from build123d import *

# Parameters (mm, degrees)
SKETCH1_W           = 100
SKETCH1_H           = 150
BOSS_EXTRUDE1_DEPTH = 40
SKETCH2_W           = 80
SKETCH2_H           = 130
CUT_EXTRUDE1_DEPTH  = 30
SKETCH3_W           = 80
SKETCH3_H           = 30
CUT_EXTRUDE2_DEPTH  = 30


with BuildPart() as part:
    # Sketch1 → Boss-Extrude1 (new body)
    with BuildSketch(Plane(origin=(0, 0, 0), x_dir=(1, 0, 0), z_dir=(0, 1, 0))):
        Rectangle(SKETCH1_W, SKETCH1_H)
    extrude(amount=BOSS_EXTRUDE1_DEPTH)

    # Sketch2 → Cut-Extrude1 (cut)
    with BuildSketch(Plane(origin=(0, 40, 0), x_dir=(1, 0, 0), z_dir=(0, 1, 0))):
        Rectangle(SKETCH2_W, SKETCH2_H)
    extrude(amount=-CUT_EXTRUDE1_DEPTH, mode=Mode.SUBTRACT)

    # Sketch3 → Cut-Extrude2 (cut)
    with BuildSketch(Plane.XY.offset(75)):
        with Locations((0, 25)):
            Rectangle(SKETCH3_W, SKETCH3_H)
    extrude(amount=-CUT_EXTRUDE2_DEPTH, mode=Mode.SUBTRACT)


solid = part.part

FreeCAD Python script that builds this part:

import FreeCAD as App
import Part
import Sketcher

V = App.Vector


def add_polygon(sketch, points):
    """Adds a closed chain of lines whose ends are joined by coincident constraints."""
    first, n = sketch.GeometryCount, len(points)
    for a, b in zip(points, points[1:] + points[:1]):
        sketch.addGeometry(Part.LineSegment(App.Vector(*a, 0), App.Vector(*b, 0)), False)
    for i in range(n):
        sketch.addConstraint(Sketcher.Constraint("Coincident", first + i, 2, first + (i + 1) % n, 1))

doc = App.newDocument("Part")
body = doc.addObject("PartDesign::Body", "Body")

sketch1 = body.newObject("Sketcher::SketchObject", "Sketch")
sketch1.AttachmentSupport = (doc.getObject("XZ_Plane"), [""])
sketch1.MapMode = "FlatFace"
add_polygon(sketch1, [(-50, -75), (-50, 75), (50, 75), (50, -75)])
sketch1.addConstraint(Sketcher.Constraint("Vertical", 0))
sketch1.addConstraint(Sketcher.Constraint("Horizontal", 1))
sketch1.addConstraint(Sketcher.Constraint("Vertical", 2))
sketch1.addConstraint(Sketcher.Constraint("Horizontal", 3))
sketch1.addConstraint(Sketcher.Constraint("Symmetric", 0, 2, 2, 2, -1, 1))
sketch1.addConstraint(Sketcher.Constraint("DistanceX", 1, 1, 1, 2, 100.0))
sketch1.addConstraint(Sketcher.Constraint("DistanceY", 0, 1, 0, 2, 150.0))
pad1 = body.newObject("PartDesign::Pad", "Pad")
pad1.Profile = sketch1
pad1.Length = 40
pad1.Reversed = True

sketch2 = body.newObject("Sketcher::SketchObject", "Sketch001")
sketch2.AttachmentSupport = (doc.getObject("XZ_Plane"), [""])
sketch2.MapMode = "FlatFace"
sketch2.AttachmentOffset = App.Placement(V(0, 0, -40), App.Rotation())
add_polygon(sketch2, [(-40, -65), (-40, 65), (40, 65), (40, -65)])
sketch2.addConstraint(Sketcher.Constraint("Vertical", 0))
sketch2.addConstraint(Sketcher.Constraint("Horizontal", 1))
sketch2.addConstraint(Sketcher.Constraint("Vertical", 2))
sketch2.addConstraint(Sketcher.Constraint("Horizontal", 3))
sketch2.addConstraint(Sketcher.Constraint("Symmetric", 0, 2, 2, 2, -1, 1))
sketch2.addConstraint(Sketcher.Constraint("DistanceX", 1, 1, 1, 2, 80.0))
sketch2.addConstraint(Sketcher.Constraint("DistanceY", 0, 1, 0, 2, 130.0))
pocket1 = body.newObject("PartDesign::Pocket", "Pocket")
pocket1.Profile = sketch2
pocket1.Length = 30
pocket1.Reversed = True

sketch3 = body.newObject("Sketcher::SketchObject", "Sketch002")
sketch3.AttachmentSupport = (doc.getObject("XY_Plane"), [""])
sketch3.MapMode = "FlatFace"
sketch3.AttachmentOffset = App.Placement(V(0, 0, 75), App.Rotation())
add_polygon(sketch3, [(-40, 40), (-40, 10), (40, 10), (40, 40)])
sketch3.addConstraint(Sketcher.Constraint("Vertical", 0))
sketch3.addConstraint(Sketcher.Constraint("Horizontal", 1))
sketch3.addConstraint(Sketcher.Constraint("Vertical", 2))
sketch3.addConstraint(Sketcher.Constraint("Horizontal", 3))
sketch3.addConstraint(Sketcher.Constraint("DistanceX", 1, 1, 1, 2, 80.0))
sketch3.addConstraint(Sketcher.Constraint("DistanceY", 0, 2, 0, 1, 30.0))
sketch3.addConstraint(Sketcher.Constraint("DistanceX", 0, 2, -1, 1, 40.0))
sketch3.addConstraint(Sketcher.Constraint("DistanceY", -1, 1, 0, 2, 10.0))
pocket2 = body.newObject("PartDesign::Pocket", "Pocket001")
pocket2.Profile = sketch3
pocket2.Length = 30

doc.recompute()
